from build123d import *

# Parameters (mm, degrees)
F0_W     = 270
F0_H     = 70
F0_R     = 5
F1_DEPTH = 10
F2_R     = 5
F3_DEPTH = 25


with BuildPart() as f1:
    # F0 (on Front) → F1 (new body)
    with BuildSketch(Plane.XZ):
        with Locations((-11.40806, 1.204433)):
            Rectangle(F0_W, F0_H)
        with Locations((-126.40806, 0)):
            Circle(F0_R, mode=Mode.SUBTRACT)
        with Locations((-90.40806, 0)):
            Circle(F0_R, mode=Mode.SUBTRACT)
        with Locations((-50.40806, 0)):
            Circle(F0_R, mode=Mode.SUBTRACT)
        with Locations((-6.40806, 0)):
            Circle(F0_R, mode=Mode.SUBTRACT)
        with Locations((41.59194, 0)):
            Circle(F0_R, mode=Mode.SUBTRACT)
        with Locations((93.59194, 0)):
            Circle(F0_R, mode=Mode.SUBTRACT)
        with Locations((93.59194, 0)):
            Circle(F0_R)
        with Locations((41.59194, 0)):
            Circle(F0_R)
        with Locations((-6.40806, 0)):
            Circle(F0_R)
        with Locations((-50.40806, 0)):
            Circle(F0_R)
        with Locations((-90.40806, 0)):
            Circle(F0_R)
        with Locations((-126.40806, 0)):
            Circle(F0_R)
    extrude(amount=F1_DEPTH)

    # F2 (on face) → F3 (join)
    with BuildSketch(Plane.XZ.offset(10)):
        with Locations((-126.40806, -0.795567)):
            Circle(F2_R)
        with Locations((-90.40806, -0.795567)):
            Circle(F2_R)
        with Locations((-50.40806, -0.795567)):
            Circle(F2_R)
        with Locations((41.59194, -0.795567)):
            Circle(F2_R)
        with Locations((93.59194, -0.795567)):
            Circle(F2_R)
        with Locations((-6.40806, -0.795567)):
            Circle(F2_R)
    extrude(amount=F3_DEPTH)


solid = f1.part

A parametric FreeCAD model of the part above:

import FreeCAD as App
import Part
import Sketcher

V = App.Vector
Q = App.Units.Quantity


def add_polygon(sketch, points):
    """Adds a closed chain of lines whose ends are joined by coincident constraints."""
    first, n = sketch.GeometryCount, len(points)
    for a, b in zip(points, points[1:] + points[:1]):
        sketch.addGeometry(Part.LineSegment(App.Vector(*a, 0), App.Vector(*b, 0)), False)
    for i in range(n):
        sketch.addConstraint(Sketcher.Constraint("Coincident", first + i, 2, first + (i + 1) % n, 1))

doc = App.newDocument("Part")
body = doc.addObject("PartDesign::Body", "Body")

sketch1 = doc.addObject("Sketcher::SketchObject", "Sketch")
body.addObject(sketch1)
sketch1.AttachmentSupport = (doc.XZ_Plane, [""])
sketch1.MapMode = "FlatFace"
add_polygon(sketch1, [(-146.40806, 36.204433), (-146.40806, -33.795567), (123.59194, -33.795567), (123.59194, 36.204433)])
sketch1.addConstraint([
    Sketcher.Constraint("Vertical", 0),
    Sketcher.Constraint("Horizontal", 1),
    Sketcher.Constraint("Vertical", 2),
    Sketcher.Constraint("Horizontal", 3),
    Sketcher.Constraint("DistanceX", 1, 1, 1, 2, Q("270 mm")),
    Sketcher.Constraint("DistanceY", 0, 2, 0, 1, Q("70 mm")),
    Sketcher.Constraint("DistanceX", 0, 2, -1, 1, Q("146.40806 mm")),
    Sketcher.Constraint("DistanceY", 0, 2, -1, 1, Q("33.795567 mm")),
])
pad1 = doc.addObject("PartDesign::Pad", "Pad")
body.addObject(pad1)
pad1.Profile = sketch1
pad1.Length = 10

sketch2 = doc.addObject("Sketcher::SketchObject", "Sketch001")
body.addObject(sketch2)
sketch2.AttachmentSupport = (doc.XZ_Plane, [""])
sketch2.MapMode = "FlatFace"
sketch2.AttachmentOffset = App.Placement(V(0, 0, 10), App.Rotation())
sketch2.addGeometry([
    Part.Circle(V(-126.40806, -0.795567, 0), V(0, 0, 1), 5),
    Part.Circle(V(-90.40806, -0.795567, 0), V(0, 0, 1), 5),
    Part.Circle(V(-50.40806, -0.795567, 0), V(0, 0, 1), 5),
    Part.Circle(V(41.59194, -0.795567, 0), V(0, 0, 1), 5),
    Part.Circle(V(93.59194, -0.795567, 0), V(0, 0, 1), 5),
    Part.Circle(V(-6.40806, -0.795567, 0), V(0, 0, 1), 5),
], False)
sketch2.addConstraint([
    Sketcher.Constraint("Equal", 0, 1),
    Sketcher.Constraint("Equal", 1, 2),
    Sketcher.Constraint("Equal", 2, 3),
    Sketcher.Constraint("Equal", 3, 4),
    Sketcher.Constraint("Equal", 4, 5),
    Sketcher.Constraint("Horizontal", 0, 3, 1, 3),
    Sketcher.Constraint("Horizontal", 1, 3, 2, 3),
    Sketcher.Constraint("Horizontal", 2, 3, 3, 3),
    Sketcher.Constraint("Horizontal", 3, 3, 4, 3),
    Sketcher.Constraint("Horizontal", 4, 3, 5, 3),
    Sketcher.Constraint("Diameter", 0, Q("10 mm")),
    Sketcher.Constraint("DistanceX", 0, 3, 1, 3, Q("36 mm")),
    Sketcher.Constraint("DistanceX", 1, 3, 2, 3, Q("40 mm")),
    Sketcher.Constraint("DistanceX", 2, 3, 3, 3, Q("92 mm")),
    Sketcher.Constraint("DistanceX", 3, 3, 4, 3, Q("52 mm")),
    Sketcher.Constraint("DistanceX", 2, 3, 5, 3, Q("44 mm")),
    Sketcher.Constraint("DistanceX", 0, 3, -1, 1, Q("126.40806 mm")),
    Sketcher.Constraint("DistanceY", 0, 3, -1, 1, Q("0.795567 mm")),
])
pad2 = doc.addObject("PartDesign::Pad", "Pad001")
body.addObject(pad2)
pad2.Profile = sketch2
pad2.Length = 25

doc.recompute()
